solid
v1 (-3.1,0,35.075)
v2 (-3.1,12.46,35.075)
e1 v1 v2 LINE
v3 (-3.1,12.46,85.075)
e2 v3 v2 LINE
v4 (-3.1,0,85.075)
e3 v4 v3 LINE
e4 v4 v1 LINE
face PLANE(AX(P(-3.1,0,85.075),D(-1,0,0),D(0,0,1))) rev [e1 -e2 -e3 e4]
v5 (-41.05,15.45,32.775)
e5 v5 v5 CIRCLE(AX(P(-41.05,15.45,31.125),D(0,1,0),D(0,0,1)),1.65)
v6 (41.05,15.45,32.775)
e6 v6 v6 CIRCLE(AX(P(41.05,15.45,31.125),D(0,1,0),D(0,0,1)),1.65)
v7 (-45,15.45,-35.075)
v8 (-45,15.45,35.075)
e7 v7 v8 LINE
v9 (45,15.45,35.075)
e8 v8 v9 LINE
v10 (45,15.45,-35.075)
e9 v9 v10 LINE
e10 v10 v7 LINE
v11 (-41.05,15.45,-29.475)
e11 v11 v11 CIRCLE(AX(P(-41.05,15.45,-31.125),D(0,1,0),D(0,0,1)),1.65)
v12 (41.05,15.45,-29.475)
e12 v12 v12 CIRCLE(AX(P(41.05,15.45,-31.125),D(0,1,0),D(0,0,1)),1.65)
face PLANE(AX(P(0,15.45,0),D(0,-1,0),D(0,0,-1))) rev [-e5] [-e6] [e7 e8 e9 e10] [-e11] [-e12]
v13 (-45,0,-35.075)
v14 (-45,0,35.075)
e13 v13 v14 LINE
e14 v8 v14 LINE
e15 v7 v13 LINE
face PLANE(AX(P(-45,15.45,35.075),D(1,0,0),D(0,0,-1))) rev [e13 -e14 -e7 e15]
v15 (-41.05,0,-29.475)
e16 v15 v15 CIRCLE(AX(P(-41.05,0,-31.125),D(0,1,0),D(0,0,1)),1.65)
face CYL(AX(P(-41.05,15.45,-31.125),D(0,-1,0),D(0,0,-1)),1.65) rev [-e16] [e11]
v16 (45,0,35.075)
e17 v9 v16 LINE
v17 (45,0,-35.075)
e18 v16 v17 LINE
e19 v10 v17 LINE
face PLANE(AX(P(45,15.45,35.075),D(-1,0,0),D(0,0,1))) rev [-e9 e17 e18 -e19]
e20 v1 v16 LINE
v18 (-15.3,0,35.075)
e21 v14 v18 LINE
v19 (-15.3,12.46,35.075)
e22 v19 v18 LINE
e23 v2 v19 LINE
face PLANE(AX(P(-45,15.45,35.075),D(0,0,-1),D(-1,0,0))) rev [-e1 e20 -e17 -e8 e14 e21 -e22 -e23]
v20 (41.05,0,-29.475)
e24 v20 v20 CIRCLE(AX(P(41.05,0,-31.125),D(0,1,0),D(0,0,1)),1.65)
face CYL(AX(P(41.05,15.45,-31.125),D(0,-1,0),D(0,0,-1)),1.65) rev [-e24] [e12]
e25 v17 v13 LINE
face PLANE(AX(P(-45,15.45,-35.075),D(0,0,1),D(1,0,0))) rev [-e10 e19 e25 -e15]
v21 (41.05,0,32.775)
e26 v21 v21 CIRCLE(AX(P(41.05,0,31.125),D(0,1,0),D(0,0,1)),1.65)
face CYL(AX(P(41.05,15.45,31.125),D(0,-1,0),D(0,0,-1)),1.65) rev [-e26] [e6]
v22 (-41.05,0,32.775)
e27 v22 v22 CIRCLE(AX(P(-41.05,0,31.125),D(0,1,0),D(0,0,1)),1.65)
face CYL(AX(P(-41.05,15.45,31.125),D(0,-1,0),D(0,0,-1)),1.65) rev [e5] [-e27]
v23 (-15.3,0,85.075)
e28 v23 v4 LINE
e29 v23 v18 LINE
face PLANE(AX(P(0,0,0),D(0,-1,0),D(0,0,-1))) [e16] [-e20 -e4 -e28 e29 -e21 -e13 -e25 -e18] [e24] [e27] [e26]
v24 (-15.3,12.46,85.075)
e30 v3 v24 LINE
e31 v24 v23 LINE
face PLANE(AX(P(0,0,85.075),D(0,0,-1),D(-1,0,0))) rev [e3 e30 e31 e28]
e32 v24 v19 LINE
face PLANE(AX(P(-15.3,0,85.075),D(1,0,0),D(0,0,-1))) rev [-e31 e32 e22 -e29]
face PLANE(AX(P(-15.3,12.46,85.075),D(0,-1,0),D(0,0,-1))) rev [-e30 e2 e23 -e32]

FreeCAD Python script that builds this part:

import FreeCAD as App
import Part
import Sketcher

V = App.Vector
Q = App.Units.Quantity


def add_polygon(sketch, points):
    """Adds a closed chain of lines whose ends are joined by coincident constraints."""
    first, n = sketch.GeometryCount, len(points)
    for a, b in zip(points, points[1:] + points[:1]):
        sketch.addGeometry(Part.LineSegment(App.Vector(*a, 0), App.Vector(*b, 0)), False)
    for i in range(n):
        sketch.addConstraint(Sketcher.Constraint("Coincident", first + i, 2, first + (i + 1) % n, 1))

doc = App.newDocument("Part")
body = doc.addObject("PartDesign::Body", "Body")

# Sketch on XZ plane
sketch1 = body.newObject("Sketcher::SketchObject", "Sketch")
sketch1.AttachmentSupport = (doc.getObject("XZ_Plane"), [""])
sketch1.MapMode = "FlatFace"
add_polygon(sketch1, [(-45, -35.1), (-45, 35.1), (45, 35.1), (45, -35.1)])  # lines 0-3
sketch1.addGeometry(Part.Circle(V(-41, 31.1, 0), V(0, 0, 1), 1.6), False)  # 4
sketch1.addGeometry(Part.Circle(V(41, 31.1, 0), V(0, 0, 1), 1.6), False)  # 5
sketch1.addGeometry(Part.Circle(V(-41, -31.1, 0), V(0, 0, 1), 1.6), False)  # 6
sketch1.addGeometry(Part.Circle(V(41, -31.1, 0), V(0, 0, 1), 1.6), False)  # 7
sketch1.addConstraint(Sketcher.Constraint("Vertical", 0))
sketch1.addConstraint(Sketcher.Constraint("Horizontal", 1))
sketch1.addConstraint(Sketcher.Constraint("Vertical", 2))
sketch1.addConstraint(Sketcher.Constraint("Horizontal", 3))
sketch1.addConstraint(Sketcher.Constraint("Equal", 4, 5))
sketch1.addConstraint(Sketcher.Constraint("Equal", 5, 6))
sketch1.addConstraint(Sketcher.Constraint("Equal", 6, 7))
sketch1.addConstraint(Sketcher.Constraint("Symmetric", 5, 3, 6, 3, -1, 1))
sketch1.addConstraint(Sketcher.Constraint("Symmetric", 4, 3, 7, 3, -1, 1))
sketch1.addConstraint(Sketcher.Constraint("Symmetric", 0, 2, 2, 2, -1, 1))
sketch1.addConstraint(Sketcher.Constraint("Symmetric", 4, 3, 5, 3, -2))
sketch1.addConstraint(Sketcher.Constraint("Diameter", 4, Q("3.3 mm")))
sketch1.addConstraint(Sketcher.Constraint("DistanceX", 1, 1, 1, 2, Q("90 mm")))
sketch1.addConstraint(Sketcher.Constraint("DistanceY", 0, 1, 0, 2, Q("70.15 mm")))
sketch1.addConstraint(Sketcher.Constraint("DistanceX", 4, 3, 5, 3, Q("82.1 mm")))
sketch1.addConstraint(Sketcher.Constraint("DistanceY", 6, 3, 0, 2, Q("66.2 mm")))
pad1 = body.newObject("PartDesign::Pad", "Pad")
pad1.Profile = sketch1
pad1.Length = 15.45
pad1.Reversed = True

# Sketch on XY plane
sketch2 = body.newObject("Sketcher::SketchObject", "Sketch001")
sketch2.AttachmentSupport = (doc.getObject("XY_Plane"), [""])
sketch2.MapMode = "FlatFace"
sketch2.AttachmentOffset = App.Placement(V(0, 0, 35.075), App.Rotation())
add_polygon(sketch2, [(-15, 12), (-15, 0), (-3, 0), (-3, 12)])  # lines 0-3
sketch2.addConstraint(Sketcher.Constraint("Vertical", 0))
sketch2.addConstraint(Sketcher.Constraint("Horizontal", 1))
sketch2.addConstraint(Sketcher.Constraint("Vertical", 2))
sketch2.addConstraint(Sketcher.Constraint("Horizontal", 3))
sketch2.addConstraint(Sketcher.Constraint("PointOnObject", 0, 2, -1))
sketch2.addConstraint(Sketcher.Constraint("DistanceX", 1, 1, 1, 2, Q("12.2 mm")))
sketch2.addConstraint(Sketcher.Constraint("DistanceY", 0, 2, 0, 1, Q("12.46 mm")))
sketch2.addConstraint(Sketcher.Constraint("DistanceX", 0, 2, -1, 1, Q("15.3 mm")))
pad2 = body.newObject("PartDesign::Pad", "Pad001")
pad2.Profile = sketch2
pad2.Length = 50

doc.recompute()
